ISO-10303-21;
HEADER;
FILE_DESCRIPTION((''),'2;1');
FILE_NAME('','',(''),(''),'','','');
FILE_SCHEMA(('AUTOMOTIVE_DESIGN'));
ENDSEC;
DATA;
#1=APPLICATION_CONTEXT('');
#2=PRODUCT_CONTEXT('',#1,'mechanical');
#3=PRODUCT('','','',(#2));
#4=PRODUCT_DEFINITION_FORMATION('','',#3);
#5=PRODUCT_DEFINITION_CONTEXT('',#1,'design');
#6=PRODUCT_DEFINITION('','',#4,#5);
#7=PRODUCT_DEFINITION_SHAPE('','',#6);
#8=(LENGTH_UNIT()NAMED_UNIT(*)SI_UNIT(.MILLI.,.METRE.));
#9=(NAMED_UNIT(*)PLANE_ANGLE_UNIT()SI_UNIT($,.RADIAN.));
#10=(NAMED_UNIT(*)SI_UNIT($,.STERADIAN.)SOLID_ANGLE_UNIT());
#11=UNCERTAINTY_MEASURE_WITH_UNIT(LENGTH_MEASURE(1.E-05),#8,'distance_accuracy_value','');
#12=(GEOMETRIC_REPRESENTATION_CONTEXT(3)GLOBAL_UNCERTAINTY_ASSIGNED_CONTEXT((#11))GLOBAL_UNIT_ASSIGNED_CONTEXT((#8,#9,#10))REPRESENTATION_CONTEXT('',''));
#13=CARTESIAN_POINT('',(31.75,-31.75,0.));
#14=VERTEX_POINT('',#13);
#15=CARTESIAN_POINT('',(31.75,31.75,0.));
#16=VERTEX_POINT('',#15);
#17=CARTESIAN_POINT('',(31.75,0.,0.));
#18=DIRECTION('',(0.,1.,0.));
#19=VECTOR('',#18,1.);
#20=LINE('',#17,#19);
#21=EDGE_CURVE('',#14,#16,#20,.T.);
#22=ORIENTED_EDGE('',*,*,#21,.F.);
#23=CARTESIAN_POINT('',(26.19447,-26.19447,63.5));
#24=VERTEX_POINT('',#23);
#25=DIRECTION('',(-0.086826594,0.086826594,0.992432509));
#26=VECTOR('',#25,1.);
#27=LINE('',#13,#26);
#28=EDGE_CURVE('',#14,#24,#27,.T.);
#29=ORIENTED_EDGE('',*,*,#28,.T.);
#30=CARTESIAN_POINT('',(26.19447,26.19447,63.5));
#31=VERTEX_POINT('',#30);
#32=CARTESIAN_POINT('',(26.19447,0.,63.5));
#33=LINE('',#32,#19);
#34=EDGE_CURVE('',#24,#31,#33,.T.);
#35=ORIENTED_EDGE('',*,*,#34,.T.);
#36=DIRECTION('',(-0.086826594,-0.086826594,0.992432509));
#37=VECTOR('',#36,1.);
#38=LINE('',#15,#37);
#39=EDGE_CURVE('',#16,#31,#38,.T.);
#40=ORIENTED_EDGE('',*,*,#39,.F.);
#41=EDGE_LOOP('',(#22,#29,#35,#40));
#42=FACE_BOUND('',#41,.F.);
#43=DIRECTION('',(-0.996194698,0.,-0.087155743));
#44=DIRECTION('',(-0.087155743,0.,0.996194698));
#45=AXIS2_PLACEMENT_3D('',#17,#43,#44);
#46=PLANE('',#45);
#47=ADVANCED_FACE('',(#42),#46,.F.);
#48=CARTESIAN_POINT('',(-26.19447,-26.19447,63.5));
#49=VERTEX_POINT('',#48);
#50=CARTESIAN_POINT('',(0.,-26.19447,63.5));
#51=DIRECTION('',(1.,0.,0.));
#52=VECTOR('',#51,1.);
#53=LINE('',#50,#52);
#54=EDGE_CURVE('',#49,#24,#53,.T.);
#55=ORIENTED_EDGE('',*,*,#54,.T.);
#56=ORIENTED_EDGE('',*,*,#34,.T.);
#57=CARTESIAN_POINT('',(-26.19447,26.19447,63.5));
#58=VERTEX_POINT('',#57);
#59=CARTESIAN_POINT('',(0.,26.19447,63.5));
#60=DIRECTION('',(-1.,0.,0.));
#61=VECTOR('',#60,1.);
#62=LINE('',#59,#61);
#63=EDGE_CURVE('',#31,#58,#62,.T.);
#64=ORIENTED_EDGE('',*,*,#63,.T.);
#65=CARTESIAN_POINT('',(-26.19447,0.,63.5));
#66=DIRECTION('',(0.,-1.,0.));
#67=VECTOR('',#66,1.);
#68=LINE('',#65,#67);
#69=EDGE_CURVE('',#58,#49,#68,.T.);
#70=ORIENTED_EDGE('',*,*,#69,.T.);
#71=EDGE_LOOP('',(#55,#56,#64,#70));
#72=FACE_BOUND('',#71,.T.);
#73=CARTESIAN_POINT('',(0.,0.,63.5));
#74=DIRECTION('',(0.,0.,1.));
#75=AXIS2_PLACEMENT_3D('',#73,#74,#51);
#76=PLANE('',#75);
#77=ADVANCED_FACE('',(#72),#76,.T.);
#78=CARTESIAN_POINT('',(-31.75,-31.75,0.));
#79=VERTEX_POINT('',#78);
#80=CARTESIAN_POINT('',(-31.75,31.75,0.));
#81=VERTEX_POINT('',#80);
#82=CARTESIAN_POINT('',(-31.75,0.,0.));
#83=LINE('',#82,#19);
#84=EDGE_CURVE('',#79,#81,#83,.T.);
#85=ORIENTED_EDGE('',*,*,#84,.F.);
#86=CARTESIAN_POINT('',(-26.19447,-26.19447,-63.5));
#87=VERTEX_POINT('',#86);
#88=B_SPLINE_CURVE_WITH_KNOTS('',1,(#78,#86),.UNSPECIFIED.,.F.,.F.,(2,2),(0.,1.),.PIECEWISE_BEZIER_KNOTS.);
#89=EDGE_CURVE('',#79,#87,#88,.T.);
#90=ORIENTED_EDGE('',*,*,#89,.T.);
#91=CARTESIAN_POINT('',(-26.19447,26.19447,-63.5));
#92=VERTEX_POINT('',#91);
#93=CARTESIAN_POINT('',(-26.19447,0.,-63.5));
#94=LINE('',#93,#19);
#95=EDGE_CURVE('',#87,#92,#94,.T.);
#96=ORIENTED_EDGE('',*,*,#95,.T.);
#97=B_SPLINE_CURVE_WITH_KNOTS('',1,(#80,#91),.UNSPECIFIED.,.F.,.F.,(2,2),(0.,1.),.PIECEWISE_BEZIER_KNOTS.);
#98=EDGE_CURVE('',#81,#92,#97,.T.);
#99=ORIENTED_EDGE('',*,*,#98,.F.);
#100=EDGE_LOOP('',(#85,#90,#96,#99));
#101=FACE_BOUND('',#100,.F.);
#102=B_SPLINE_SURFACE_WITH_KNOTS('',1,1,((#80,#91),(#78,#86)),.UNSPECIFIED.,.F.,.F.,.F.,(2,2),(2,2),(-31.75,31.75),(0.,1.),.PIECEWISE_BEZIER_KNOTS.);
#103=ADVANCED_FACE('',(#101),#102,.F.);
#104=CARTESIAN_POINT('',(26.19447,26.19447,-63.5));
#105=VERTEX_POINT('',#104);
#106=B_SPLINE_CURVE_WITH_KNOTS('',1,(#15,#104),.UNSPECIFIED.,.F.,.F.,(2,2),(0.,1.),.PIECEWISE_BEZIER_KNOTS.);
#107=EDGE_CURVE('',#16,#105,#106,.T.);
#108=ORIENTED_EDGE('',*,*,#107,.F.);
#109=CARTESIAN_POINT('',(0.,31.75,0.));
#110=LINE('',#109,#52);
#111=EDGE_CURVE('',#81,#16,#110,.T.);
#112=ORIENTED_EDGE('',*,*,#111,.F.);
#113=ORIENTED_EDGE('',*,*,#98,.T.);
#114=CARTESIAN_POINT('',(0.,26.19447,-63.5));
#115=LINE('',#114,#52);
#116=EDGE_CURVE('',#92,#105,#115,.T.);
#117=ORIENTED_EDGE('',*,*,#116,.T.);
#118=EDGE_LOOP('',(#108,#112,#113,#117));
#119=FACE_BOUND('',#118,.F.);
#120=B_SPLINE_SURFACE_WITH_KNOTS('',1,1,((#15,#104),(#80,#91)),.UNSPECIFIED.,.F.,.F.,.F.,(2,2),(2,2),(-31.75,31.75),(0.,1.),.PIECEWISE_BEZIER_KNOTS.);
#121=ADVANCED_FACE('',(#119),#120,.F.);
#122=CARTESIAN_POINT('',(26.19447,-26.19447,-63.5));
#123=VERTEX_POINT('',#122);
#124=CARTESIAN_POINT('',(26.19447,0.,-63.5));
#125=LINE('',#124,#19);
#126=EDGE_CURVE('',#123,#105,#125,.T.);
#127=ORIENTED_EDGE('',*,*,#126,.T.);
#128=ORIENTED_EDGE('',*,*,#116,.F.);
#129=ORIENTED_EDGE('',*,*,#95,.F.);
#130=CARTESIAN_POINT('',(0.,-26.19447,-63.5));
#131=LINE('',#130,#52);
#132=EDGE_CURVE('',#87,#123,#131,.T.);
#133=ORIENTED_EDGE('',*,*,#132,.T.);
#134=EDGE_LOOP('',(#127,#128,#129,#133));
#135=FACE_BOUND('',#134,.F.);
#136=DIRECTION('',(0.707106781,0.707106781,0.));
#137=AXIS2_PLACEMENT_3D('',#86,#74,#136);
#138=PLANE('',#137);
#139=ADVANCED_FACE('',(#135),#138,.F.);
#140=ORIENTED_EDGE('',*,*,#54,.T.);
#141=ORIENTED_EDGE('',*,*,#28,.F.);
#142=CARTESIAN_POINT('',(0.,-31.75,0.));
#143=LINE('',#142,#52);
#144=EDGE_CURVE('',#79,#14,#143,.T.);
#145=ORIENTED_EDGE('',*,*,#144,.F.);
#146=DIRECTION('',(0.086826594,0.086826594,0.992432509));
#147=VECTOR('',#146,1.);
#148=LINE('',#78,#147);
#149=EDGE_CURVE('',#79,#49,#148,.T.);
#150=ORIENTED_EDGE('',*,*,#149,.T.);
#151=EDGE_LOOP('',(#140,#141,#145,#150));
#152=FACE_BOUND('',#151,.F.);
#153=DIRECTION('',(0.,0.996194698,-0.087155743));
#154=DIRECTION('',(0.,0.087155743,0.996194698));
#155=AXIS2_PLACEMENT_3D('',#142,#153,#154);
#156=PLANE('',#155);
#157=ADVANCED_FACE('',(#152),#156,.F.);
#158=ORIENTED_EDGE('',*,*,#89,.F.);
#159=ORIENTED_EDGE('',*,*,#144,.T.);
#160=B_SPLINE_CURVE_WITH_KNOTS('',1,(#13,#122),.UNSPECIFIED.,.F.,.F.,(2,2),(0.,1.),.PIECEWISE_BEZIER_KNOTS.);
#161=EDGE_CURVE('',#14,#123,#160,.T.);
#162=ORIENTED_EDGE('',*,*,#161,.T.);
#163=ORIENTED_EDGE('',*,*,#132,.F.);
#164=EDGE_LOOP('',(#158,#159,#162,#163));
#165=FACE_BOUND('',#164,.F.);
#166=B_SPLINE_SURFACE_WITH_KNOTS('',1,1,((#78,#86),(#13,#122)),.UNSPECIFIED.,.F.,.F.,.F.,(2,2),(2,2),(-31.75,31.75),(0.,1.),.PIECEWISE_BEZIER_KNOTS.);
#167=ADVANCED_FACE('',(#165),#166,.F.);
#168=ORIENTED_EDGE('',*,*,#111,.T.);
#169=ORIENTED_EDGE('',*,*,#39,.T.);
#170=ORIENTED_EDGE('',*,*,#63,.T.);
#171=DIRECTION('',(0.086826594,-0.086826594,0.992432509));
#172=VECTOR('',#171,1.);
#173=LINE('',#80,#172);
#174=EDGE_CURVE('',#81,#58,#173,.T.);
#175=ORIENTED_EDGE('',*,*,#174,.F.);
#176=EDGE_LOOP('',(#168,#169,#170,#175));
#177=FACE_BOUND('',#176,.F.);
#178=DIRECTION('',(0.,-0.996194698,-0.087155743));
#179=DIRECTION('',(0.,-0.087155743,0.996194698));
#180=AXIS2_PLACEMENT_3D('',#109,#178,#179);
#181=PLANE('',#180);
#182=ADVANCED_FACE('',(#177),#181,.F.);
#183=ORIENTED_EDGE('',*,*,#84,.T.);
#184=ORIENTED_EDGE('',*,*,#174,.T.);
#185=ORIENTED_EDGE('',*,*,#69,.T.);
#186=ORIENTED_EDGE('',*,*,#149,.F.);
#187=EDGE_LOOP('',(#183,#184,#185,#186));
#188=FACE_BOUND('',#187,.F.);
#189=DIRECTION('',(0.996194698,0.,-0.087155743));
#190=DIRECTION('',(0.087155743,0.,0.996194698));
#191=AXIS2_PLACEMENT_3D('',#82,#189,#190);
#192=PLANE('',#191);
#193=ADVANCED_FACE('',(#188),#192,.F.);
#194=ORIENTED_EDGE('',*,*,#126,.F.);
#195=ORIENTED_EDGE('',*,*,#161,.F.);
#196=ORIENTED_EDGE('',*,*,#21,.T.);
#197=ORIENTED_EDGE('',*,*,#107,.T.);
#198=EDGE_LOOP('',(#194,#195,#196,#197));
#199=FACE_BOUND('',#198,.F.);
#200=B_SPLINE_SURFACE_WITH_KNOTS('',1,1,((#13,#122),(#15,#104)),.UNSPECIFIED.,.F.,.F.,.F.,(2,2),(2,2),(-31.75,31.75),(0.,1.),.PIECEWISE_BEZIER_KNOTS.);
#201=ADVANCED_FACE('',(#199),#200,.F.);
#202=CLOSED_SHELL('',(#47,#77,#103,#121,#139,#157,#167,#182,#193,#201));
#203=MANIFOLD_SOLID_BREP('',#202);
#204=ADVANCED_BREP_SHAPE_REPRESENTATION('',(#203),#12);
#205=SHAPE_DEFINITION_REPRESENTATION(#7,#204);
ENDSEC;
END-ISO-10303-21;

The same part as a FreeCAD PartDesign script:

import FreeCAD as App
import Part
import Sketcher

V = App.Vector
Q = App.Units.Quantity


def add_polygon(sketch, points):
    """Adds a closed chain of lines whose ends are joined by coincident constraints."""
    first, n = sketch.GeometryCount, len(points)
    for a, b in zip(points, points[1:] + points[:1]):
        sketch.addGeometry(Part.LineSegment(App.Vector(*a, 0), App.Vector(*b, 0)), False)
    for i in range(n):
        sketch.addConstraint(Sketcher.Constraint("Coincident", first + i, 2, first + (i + 1) % n, 1))

doc = App.newDocument("Part")
body = doc.addObject("PartDesign::Body", "Body")

# Sketch on XY plane
sketch1 = body.newObject("Sketcher::SketchObject", "Sketch")
sketch1.AttachmentSupport = (doc.getObject("XY_Plane"), [""])
sketch1.MapMode = "FlatFace"
add_polygon(sketch1, [(-32, 32), (-32, -32), (32, -32), (32, 32)])  # lines 0-3
sketch1.addConstraint([
    Sketcher.Constraint("Vertical", 0),
    Sketcher.Constraint("Horizontal", 1),
    Sketcher.Constraint("Vertical", 2),
    Sketcher.Constraint("Horizontal", 3),
    Sketcher.Constraint("Symmetric", 0, 2, 2, 2, -1, 1),
    Sketcher.Constraint("Equal", 3, 0),
    Sketcher.Constraint("DistanceX", 1, 1, 1, 2, Q("2.5 in")),
])
pad1 = body.newObject("PartDesign::Pad", "Pad")
pad1.Profile = sketch1
pad1.Length = Q("5 in")
pad1.Midplane = True
pad1.TaperAngle = -5

doc.recompute()
